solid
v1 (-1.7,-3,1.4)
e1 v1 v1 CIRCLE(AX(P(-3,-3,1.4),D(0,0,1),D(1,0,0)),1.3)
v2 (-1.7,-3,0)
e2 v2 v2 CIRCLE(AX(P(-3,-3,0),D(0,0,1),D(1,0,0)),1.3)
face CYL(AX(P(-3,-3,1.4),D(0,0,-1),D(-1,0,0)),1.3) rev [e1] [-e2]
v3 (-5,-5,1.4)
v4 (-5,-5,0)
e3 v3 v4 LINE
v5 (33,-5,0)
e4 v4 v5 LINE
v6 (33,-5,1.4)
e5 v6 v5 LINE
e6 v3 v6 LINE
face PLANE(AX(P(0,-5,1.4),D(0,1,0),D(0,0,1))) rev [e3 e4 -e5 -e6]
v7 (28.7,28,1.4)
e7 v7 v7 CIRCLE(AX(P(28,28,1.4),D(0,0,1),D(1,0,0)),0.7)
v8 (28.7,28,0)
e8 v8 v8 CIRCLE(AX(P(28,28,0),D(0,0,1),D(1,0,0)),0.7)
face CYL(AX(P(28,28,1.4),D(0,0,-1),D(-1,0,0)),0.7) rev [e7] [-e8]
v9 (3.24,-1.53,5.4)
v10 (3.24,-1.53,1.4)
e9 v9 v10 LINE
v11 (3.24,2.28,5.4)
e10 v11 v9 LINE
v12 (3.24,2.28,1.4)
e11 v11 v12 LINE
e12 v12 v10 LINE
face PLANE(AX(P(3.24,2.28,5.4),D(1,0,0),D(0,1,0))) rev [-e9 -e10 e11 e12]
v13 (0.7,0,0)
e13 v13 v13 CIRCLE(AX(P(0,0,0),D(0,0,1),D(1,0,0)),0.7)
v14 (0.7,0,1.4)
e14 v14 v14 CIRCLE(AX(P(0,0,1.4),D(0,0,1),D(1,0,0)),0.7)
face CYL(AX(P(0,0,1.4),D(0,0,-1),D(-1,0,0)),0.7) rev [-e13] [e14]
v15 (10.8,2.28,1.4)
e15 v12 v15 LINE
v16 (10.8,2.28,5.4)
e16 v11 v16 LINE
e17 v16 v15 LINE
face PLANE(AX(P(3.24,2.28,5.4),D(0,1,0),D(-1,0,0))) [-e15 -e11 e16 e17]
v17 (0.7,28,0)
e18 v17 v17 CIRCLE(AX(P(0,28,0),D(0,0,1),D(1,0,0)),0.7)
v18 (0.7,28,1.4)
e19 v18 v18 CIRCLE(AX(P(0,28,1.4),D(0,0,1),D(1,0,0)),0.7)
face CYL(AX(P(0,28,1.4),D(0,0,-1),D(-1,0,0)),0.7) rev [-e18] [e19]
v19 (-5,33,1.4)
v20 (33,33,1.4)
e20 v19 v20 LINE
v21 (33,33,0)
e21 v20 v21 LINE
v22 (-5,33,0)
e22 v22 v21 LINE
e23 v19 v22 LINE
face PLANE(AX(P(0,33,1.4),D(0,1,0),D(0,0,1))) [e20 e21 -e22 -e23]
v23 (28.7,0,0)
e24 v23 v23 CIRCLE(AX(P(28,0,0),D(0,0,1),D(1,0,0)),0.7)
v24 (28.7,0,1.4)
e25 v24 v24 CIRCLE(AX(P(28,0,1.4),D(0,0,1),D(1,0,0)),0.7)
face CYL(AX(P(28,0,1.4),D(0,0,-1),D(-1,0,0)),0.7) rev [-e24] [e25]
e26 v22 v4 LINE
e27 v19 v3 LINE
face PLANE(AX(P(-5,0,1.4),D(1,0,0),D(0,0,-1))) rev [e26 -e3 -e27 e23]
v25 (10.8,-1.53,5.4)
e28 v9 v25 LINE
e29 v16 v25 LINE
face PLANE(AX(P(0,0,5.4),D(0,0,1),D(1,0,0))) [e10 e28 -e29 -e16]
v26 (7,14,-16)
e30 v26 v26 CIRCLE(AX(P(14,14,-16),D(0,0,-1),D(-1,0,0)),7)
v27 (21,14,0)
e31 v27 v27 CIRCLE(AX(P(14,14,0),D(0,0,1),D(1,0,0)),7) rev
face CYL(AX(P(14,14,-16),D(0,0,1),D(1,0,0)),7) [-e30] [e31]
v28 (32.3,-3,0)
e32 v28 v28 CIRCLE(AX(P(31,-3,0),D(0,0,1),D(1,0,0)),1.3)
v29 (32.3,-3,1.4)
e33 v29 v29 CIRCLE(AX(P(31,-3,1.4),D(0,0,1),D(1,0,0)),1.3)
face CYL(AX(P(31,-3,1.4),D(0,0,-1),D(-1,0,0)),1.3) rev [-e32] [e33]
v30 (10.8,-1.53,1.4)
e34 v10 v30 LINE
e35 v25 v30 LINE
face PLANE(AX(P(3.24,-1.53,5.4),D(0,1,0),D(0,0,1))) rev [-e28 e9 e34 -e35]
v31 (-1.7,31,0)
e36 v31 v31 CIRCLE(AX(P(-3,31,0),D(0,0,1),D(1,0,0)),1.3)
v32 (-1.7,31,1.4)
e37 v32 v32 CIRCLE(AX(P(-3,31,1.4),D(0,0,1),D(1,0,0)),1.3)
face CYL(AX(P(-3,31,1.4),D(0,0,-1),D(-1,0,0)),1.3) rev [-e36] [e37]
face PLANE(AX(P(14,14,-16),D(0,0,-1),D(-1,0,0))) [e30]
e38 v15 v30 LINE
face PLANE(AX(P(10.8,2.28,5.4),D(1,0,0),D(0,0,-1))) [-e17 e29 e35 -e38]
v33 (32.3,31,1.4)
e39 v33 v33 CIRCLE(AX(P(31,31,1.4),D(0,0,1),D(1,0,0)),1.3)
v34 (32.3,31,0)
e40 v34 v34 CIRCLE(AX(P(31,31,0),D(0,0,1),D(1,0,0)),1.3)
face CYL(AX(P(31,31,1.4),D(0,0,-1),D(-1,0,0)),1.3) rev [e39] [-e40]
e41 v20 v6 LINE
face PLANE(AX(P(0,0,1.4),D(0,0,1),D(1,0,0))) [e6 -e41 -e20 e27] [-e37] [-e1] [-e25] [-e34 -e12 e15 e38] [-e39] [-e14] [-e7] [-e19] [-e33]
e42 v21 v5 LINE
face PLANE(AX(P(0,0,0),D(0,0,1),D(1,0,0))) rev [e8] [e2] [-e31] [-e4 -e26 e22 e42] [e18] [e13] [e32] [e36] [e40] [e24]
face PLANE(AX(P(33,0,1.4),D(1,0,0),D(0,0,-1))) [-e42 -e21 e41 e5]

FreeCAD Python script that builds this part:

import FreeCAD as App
import Part
import Sketcher

V = App.Vector
Q = App.Units.Quantity

doc = App.newDocument("Part")
params = doc.addObject("Spreadsheet::Sheet", "Params")
for row, (alias, value) in enumerate([
    ("sketch1_diameter", "2.6 mm"),
    ("sketch1_diameter2", "1.4 mm"),
    ("sketch1_width", "38 mm"),
    ("pad1_length", "1.4 mm"),
    ("sketch2_width", "7.56 mm"),
    ("sketch2_height", "3.81 mm"),
    ("pad2_length", "4 mm"),
    ("sketch3_diameter", "14 mm"),
    ("pad3_length", "16 mm"),
], start=1):
    params.set(f"A{row}", alias)
    params.set(f"B{row}", "=" + value)
    params.setAlias(f"B{row}", alias)

body = doc.addObject("PartDesign::Body", "Body")

# Sketch on XY plane
sketch1 = body.newObject("Sketcher::SketchObject", "Sketch")
sketch1.AttachmentSupport = (doc.getObject("XY_Plane"), [""])
sketch1.MapMode = "FlatFace"
sketch1.addGeometry(Part.LineSegment(V(-5, 33, 0), V(-5, -5, 0)), False)
sketch1.addGeometry(Part.LineSegment(V(-5, -5, 0), V(33, -5, 0)), False)
sketch1.addGeometry(Part.LineSegment(V(33, -5, 0), V(33, 33, 0)), False)
sketch1.addGeometry(Part.LineSegment(V(33, 33, 0), V(-5, 33, 0)), False)
sketch1.addGeometry(Part.Circle(V(-3, -3, 0), V(0, 0, 1), 1.3), False)
sketch1.addGeometry(Part.Circle(V(31, -3, 0), V(0, 0, 1), 1.3), False)
sketch1.addGeometry(Part.Circle(V(-3, 31, 0), V(0, 0, 1), 1.3), False)
sketch1.addGeometry(Part.Circle(V(31, 31, 0), V(0, 0, 1), 1.3), False)
sketch1.addGeometry(Part.Circle(V(28, 0, 0), V(0, 0, 1), 0.7), False)
sketch1.addGeometry(Part.Circle(V(0, 28, 0), V(0, 0, 1), 0.7), False)
sketch1.addGeometry(Part.Circle(V(0, 0, 0), V(0, 0, 1), 0.7), False)
sketch1.addGeometry(Part.Circle(V(28, 28, 0), V(0, 0, 1), 0.7), False)
sketch1.addConstraint(Sketcher.Constraint("Coincident", 0, 2, 1, 1))
sketch1.addConstraint(Sketcher.Constraint("Coincident", 1, 2, 2, 1))
sketch1.addConstraint(Sketcher.Constraint("Coincident", 2, 2, 3, 1))
sketch1.addConstraint(Sketcher.Constraint("Coincident", 3, 2, 0, 1))
sketch1.addConstraint(Sketcher.Constraint("Vertical", 0))
sketch1.addConstraint(Sketcher.Constraint("Horizontal", 1))
sketch1.addConstraint(Sketcher.Constraint("Vertical", 2))
sketch1.addConstraint(Sketcher.Constraint("Horizontal", 3))
sketch1.addConstraint(Sketcher.Constraint("Coincident", 10, 3, -1, 1))
sketch1.addConstraint(Sketcher.Constraint("Equal", 4, 5))
sketch1.addConstraint(Sketcher.Constraint("Equal", 5, 6))
sketch1.addConstraint(Sketcher.Constraint("Equal", 6, 7))
sketch1.addConstraint(Sketcher.Constraint("Equal", 8, 9))
sketch1.addConstraint(Sketcher.Constraint("Equal", 9, 10))
sketch1.addConstraint(Sketcher.Constraint("Equal", 10, 11))
sketch1.addConstraint(Sketcher.Constraint("PointOnObject", 8, 3, -1))
sketch1.addConstraint(Sketcher.Constraint("PointOnObject", 9, 3, -2))
sketch1.addConstraint(Sketcher.Constraint("Horizontal", 4, 3, 5, 3))
sketch1.addConstraint(Sketcher.Constraint("Horizontal", 6, 3, 7, 3))
sketch1.addConstraint(Sketcher.Constraint("Horizontal", 9, 3, 11, 3))
sketch1.addConstraint(Sketcher.Constraint("Vertical", 4, 3, 6, 3))
sketch1.addConstraint(Sketcher.Constraint("Vertical", 5, 3, 7, 3))
sketch1.addConstraint(Sketcher.Constraint("Vertical", 8, 3, 11, 3))
sketch1.addConstraint(Sketcher.Constraint("Equal", 3, 0))
sketch1.addConstraint(Sketcher.Constraint("Diameter", 4, Q("2.6 mm")))
sketch1.addConstraint(Sketcher.Constraint("Diameter", 8, Q("1.4 mm")))
sketch1.addConstraint(Sketcher.Constraint("DistanceX", 1, 1, 1, 2, Q("38 mm")))
sketch1.addConstraint(Sketcher.Constraint("DistanceX", 4, 3, -1, 1, Q("3 mm")))
sketch1.addConstraint(Sketcher.Constraint("DistanceY", 4, 3, -1, 1, Q("3 mm")))
sketch1.addConstraint(Sketcher.Constraint("DistanceX", -1, 1, 5, 3, Q("31 mm")))
sketch1.addConstraint(Sketcher.Constraint("DistanceY", -1, 1, 6, 3, Q("31 mm")))
sketch1.addConstraint(Sketcher.Constraint("DistanceX", -1, 1, 8, 3, Q("28 mm")))
sketch1.addConstraint(Sketcher.Constraint("DistanceY", -1, 1, 9, 3, Q("28 mm")))
sketch1.addConstraint(Sketcher.Constraint("DistanceX", 0, 2, -1, 1, Q("5 mm")))
sketch1.addConstraint(Sketcher.Constraint("DistanceY", 0, 2, -1, 1, Q("5 mm")))
sketch1.setExpression("Constraints[24]", "Params.sketch1_diameter")
sketch1.setExpression("Constraints[25]", "Params.sketch1_diameter2")
sketch1.setExpression("Constraints[26]", "Params.sketch1_width")
pad1 = body.newObject("PartDesign::Pad", "Pad")
pad1.Profile = sketch1
pad1.setExpression("Length", "Params.pad1_length")

# Sketch on XY plane
sketch2 = body.newObject("Sketcher::SketchObject", "Sketch001")
sketch2.AttachmentSupport = (doc.getObject("XY_Plane"), [""])
sketch2.MapMode = "FlatFace"
sketch2.AttachmentOffset = App.Placement(V(0, 0, 1.4), App.Rotation())
sketch2.addGeometry(Part.LineSegment(V(3.2, 2.3, 0), V(3.2, -1.5, 0)), False)
sketch2.addGeometry(Part.LineSegment(V(3.2, -1.5, 0), V(10.8, -1.5, 0)), False)
sketch2.addGeometry(Part.LineSegment(V(10.8, -1.5, 0), V(10.8, 2.3, 0)), False)
sketch2.addGeometry(Part.LineSegment(V(10.8, 2.3, 0), V(3.2, 2.3, 0)), False)
sketch2.addConstraint(Sketcher.Constraint("Coincident", 0, 2, 1, 1))
sketch2.addConstraint(Sketcher.Constraint("Coincident", 1, 2, 2, 1))
sketch2.addConstraint(Sketcher.Constraint("Coincident", 2, 2, 3, 1))
sketch2.addConstraint(Sketcher.Constraint("Coincident", 3, 2, 0, 1))
sketch2.addConstraint(Sketcher.Constraint("Vertical", 0))
sketch2.addConstraint(Sketcher.Constraint("Horizontal", 1))
sketch2.addConstraint(Sketcher.Constraint("Vertical", 2))
sketch2.addConstraint(Sketcher.Constraint("Horizontal", 3))
sketch2.addConstraint(Sketcher.Constraint("DistanceX", 1, 1, 1, 2, Q("7.56 mm")))
sketch2.addConstraint(Sketcher.Constraint("DistanceY", 0, 2, 0, 1, Q("3.81 mm")))
sketch2.addConstraint(Sketcher.Constraint("DistanceX", -1, 1, 1, 2, Q("10.8 mm")))
sketch2.addConstraint(Sketcher.Constraint("DistanceY", 0, 2, -1, 1, Q("1.53 mm")))
sketch2.setExpression("Constraints[8]", "Params.sketch2_width")
sketch2.setExpression("Constraints[9]", "Params.sketch2_height")
pad2 = body.newObject("PartDesign::Pad", "Pad001")
pad2.Profile = sketch2
pad2.setExpression("Length", "Params.pad2_length")

# Sketch on XY plane
sketch3 = body.newObject("Sketcher::SketchObject", "Sketch002")
sketch3.AttachmentSupport = (doc.getObject("XY_Plane"), [""])
sketch3.MapMode = "FlatFace"
sketch3.addGeometry(Part.Circle(V(14, 14, 0), V(0, 0, 1), 7), False)
sketch3.addConstraint(Sketcher.Constraint("Diameter", 0, Q("14 mm")))
sketch3.addConstraint(Sketcher.Constraint("DistanceX", -1, 1, 0, 3, Q("14 mm")))
sketch3.addConstraint(Sketcher.Constraint("DistanceY", -1, 1, 0, 3, Q("14 mm")))
sketch3.setExpression("Constraints[0]", "Params.sketch3_diameter")
pad3 = body.newObject("PartDesign::Pad", "Pad002")
pad3.Profile = sketch3
pad3.setExpression("Length", "Params.pad3_length")
pad3.Reversed = True

doc.recompute()
